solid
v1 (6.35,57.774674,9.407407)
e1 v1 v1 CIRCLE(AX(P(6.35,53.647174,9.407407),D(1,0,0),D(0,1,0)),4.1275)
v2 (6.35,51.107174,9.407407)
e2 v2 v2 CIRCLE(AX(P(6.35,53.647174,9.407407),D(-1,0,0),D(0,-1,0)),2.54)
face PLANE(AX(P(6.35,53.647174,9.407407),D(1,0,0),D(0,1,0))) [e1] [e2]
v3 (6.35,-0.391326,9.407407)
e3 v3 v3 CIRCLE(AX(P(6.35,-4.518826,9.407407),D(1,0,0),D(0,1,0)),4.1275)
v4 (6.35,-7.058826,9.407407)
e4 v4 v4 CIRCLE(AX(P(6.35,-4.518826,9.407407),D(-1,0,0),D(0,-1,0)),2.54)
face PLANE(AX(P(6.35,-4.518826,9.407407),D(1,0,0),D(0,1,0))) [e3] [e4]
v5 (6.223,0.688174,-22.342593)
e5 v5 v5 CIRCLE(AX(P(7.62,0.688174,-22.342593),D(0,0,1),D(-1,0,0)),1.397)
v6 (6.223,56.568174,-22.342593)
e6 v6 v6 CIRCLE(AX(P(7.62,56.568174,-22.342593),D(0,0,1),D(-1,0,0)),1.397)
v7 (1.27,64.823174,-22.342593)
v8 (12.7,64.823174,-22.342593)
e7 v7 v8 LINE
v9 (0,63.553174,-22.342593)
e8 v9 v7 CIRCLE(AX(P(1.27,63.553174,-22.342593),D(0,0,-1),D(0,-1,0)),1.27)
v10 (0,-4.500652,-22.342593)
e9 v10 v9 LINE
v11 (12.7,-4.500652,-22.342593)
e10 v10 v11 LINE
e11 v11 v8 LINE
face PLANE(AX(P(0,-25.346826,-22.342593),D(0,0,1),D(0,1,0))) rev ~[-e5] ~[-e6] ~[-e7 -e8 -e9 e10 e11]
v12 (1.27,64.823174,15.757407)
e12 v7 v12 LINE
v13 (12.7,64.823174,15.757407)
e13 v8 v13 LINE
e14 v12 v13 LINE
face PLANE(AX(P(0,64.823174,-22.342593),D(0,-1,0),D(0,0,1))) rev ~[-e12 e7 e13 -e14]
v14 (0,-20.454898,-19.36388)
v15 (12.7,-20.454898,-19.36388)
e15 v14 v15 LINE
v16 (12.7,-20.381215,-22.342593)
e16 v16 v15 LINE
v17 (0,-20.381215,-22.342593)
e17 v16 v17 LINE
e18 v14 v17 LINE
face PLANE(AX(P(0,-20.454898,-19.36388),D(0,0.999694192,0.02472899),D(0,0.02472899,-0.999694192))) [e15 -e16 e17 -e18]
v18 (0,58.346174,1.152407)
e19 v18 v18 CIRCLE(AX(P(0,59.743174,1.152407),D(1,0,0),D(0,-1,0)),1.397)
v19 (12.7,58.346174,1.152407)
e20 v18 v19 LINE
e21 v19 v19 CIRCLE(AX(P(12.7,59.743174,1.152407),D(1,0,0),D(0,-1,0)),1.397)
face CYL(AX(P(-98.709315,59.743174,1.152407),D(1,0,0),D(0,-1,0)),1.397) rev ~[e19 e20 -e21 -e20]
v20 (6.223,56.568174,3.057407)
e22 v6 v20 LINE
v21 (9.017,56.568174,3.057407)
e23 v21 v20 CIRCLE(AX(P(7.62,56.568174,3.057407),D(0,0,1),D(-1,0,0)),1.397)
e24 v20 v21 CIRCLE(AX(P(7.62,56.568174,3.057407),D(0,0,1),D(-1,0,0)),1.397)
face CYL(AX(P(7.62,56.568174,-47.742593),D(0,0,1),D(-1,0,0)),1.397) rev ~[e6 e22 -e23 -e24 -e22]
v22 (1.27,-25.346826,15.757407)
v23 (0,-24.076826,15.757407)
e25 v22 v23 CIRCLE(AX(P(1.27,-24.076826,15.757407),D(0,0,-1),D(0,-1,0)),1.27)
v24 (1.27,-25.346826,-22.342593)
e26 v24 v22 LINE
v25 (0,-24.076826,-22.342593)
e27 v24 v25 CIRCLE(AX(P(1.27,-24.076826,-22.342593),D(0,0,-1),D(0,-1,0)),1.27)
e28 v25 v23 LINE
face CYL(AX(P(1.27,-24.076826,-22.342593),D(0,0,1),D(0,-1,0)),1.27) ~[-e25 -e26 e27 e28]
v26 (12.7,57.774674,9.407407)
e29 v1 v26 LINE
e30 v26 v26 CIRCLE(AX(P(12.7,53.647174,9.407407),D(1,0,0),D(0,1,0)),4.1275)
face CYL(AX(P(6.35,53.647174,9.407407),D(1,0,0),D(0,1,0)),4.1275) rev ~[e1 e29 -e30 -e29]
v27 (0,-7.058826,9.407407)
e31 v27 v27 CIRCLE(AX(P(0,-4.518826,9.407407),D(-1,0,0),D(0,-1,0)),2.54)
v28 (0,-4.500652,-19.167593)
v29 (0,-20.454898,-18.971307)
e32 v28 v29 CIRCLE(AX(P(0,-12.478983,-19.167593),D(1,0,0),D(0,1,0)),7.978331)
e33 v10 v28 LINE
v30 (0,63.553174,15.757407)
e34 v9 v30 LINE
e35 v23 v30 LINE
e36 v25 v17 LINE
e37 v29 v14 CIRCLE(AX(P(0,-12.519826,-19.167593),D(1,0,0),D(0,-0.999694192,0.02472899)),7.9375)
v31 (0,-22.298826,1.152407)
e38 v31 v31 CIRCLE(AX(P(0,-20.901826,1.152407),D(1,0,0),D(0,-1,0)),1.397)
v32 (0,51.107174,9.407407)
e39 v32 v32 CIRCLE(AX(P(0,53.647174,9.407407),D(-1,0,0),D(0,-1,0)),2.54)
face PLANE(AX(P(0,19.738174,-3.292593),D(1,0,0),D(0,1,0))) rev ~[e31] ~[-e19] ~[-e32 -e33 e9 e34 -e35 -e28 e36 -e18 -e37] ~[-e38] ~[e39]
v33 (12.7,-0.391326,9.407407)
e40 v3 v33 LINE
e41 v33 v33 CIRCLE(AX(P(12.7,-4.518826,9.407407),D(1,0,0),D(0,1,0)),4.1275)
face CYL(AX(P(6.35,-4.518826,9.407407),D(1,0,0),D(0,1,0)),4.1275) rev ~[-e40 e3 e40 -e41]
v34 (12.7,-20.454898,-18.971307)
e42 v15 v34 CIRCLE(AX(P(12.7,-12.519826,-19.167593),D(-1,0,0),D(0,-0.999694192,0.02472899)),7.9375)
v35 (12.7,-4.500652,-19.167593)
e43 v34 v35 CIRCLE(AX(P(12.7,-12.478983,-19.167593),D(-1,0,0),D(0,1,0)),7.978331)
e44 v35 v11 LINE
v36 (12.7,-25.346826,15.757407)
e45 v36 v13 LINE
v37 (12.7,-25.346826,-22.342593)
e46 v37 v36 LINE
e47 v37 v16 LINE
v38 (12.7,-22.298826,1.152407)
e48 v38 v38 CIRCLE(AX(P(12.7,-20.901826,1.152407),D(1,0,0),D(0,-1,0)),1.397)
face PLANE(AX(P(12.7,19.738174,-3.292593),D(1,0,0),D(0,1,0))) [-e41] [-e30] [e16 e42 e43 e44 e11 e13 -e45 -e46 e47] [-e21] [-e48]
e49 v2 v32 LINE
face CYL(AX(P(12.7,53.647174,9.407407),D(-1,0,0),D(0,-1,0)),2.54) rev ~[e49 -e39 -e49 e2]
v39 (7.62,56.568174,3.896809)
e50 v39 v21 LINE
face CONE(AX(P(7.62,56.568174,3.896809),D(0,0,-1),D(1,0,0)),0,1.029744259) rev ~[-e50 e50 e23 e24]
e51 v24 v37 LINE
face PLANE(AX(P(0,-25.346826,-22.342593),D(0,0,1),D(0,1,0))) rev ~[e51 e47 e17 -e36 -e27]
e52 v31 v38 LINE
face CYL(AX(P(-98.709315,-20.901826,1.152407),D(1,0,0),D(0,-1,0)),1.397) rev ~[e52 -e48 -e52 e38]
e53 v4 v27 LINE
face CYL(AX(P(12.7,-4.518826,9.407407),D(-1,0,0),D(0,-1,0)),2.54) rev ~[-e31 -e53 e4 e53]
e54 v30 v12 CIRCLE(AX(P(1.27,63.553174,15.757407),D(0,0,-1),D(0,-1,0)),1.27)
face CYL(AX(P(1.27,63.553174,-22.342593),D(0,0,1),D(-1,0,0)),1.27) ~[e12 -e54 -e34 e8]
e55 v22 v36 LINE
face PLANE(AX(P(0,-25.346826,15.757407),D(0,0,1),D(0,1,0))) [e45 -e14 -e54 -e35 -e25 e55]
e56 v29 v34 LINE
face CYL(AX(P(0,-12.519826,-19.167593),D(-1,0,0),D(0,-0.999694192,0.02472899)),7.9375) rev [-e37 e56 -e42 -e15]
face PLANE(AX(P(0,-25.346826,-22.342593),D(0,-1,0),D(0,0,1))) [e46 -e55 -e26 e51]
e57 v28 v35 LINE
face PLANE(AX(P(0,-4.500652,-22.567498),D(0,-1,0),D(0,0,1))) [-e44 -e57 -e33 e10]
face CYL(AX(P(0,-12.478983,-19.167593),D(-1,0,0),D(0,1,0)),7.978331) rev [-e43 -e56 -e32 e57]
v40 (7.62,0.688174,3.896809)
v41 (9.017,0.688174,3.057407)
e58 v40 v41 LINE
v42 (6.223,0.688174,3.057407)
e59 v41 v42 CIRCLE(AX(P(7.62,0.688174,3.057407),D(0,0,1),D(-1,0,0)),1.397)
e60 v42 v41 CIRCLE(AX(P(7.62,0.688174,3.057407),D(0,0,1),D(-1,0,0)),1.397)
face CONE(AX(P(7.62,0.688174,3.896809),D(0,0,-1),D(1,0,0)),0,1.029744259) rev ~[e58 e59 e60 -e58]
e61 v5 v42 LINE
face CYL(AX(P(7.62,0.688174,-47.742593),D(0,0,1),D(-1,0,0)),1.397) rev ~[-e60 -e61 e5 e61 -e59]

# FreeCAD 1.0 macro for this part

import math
import FreeCAD as App
import Part
import Sketcher

V = App.Vector
Q = App.Units.Quantity


def edges_at(feature, points):
    """Names of the edges that pass closest to the given points."""
    edges = feature.Shape.Edges
    near = lambda p: min(range(len(edges)), key=lambda i: edges[i].distToShape(Part.Vertex(*p))[0])
    return sorted({f"Edge{near(p) + 1}" for p in points})


def add_polygon(sketch, points):
    """Adds a closed chain of lines whose ends are joined by coincident constraints."""
    first, n = sketch.GeometryCount, len(points)
    for a, b in zip(points, points[1:] + points[:1]):
        sketch.addGeometry(Part.LineSegment(App.Vector(*a, 0), App.Vector(*b, 0)), False)
    for i in range(n):
        sketch.addConstraint(Sketcher.Constraint("Coincident", first + i, 2, first + (i + 1) % n, 1))

doc = App.newDocument("Part")
params = doc.addObject("Spreadsheet::Sheet", "Params")
for row, (alias, value) in enumerate([
    ("sketch1_height", "1.5 in"),
    ("sketch1_width", "3.55 in"),
    ("pad1_length", "0.5 in"),
    ("sketch2_diameter", "0.11 in"),
    ("hole_diameter", "0.11 in"),
    ("sketch3_diameter", "0.2 in"),
    ("hole2_diameter", "0.2 in"),
    ("hole2_cbore_diameter", "0.325 in"),
    ("hole2_cbore_depth", "0.25 in"),
    ("sketch4_radius", "0.3125 in"),
    ("sketch4_width", "0.625 in"),
    ("sketch5_diameter", "0.11 in"),
    ("hole3_diameter", "0.11 in"),
    ("hole3_depth", "1 in"),
    ("fillet_radius", "0.05 in"),
], start=1):
    params.set(f"A{row}", alias)
    params.set(f"B{row}", "=" + value)
    params.setAlias(f"B{row}", alias)

body = doc.addObject("PartDesign::Body", "Body")

# Sketch on YZ plane
sketch1 = doc.addObject("Sketcher::SketchObject", "Sketch")
body.addObject(sketch1)
sketch1.AttachmentSupport = (doc.YZ_Plane, [""])
sketch1.MapMode = "FlatFace"
add_polygon(sketch1, [(-25.346826, 15.757407), (-25.346826, -22.342593), (64.823174, -22.342593), (64.823174, 15.757407)])  # lines 0-3
sketch1.addConstraint([
    Sketcher.Constraint("Vertical", 0),
    Sketcher.Constraint("Horizontal", 1),
    Sketcher.Constraint("Vertical", 2),
    Sketcher.Constraint("Horizontal", 3),
    Sketcher.Constraint("DistanceY", 0, 2, 0, 1, Q("1.5 in")),
    Sketcher.Constraint("DistanceX", 1, 1, 1, 2, Q("3.55 in")),
    Sketcher.Constraint("DistanceX", 0, 2, -1, 1, 25.346826),
    Sketcher.Constraint("DistanceY", 0, 2, -1, 1, 22.342593),
])
sketch1.setExpression("Constraints[8]", "Params.sketch1_height")
sketch1.setExpression("Constraints[9]", "Params.sketch1_width")
pad1 = doc.addObject("PartDesign::Pad", "Pad")
body.addObject(pad1)
pad1.Profile = sketch1
pad1.setExpression("Length", "Params.pad1_length")

# Sketch on YZ plane
sketch2 = doc.addObject("Sketcher::SketchObject", "Sketch001")
body.addObject(sketch2)
sketch2.AttachmentSupport = (doc.YZ_Plane, [""])
sketch2.MapMode = "FlatFace"
sketch2.addGeometry([
    Part.Circle(V(-20.901826, 1.152407, 0), V(0, 0, 1), 1.397),
    Part.Circle(V(59.743174, 1.152407, 0), V(0, 0, 1), 1.397),
], False)
sketch2.addConstraint([
    Sketcher.Constraint("Equal", 0, 1),
    Sketcher.Constraint("Horizontal", 0, 3, 1, 3),
    Sketcher.Constraint("Diameter", 0, Q("0.11 in")),
    Sketcher.Constraint("DistanceX", 0, 3, 1, 3, Q("3.175 in")),
    Sketcher.Constraint("DistanceX", 0, 3, -1, 1, 20.901826),
    Sketcher.Constraint("DistanceY", -1, 1, 0, 3, 1.152407),
])
sketch2.setExpression("Constraints[2]", "Params.sketch2_diameter")
doc.recompute()
hole = doc.addObject("PartDesign::Hole", "Hole")
body.addObject(hole)
hole.Profile = sketch2
hole.ThreadType = "None"
hole.setExpression("Diameter", "Params.hole_diameter")
hole.DepthType = "ThroughAll"
hole.Reversed = True

# Sketch on YZ plane
sketch3 = doc.addObject("Sketcher::SketchObject", "Sketch002")
body.addObject(sketch3)
sketch3.AttachmentSupport = (doc.YZ_Plane, [""])
sketch3.MapMode = "FlatFace"
sketch3.AttachmentOffset = App.Placement(V(0, 0, 0.5 * 25.4), App.Rotation())
sketch3.addGeometry([
    Part.Circle(V(-4.518826, 9.407407, 0), V(0, 0, 1), 2.54),
    Part.Circle(V(53.647174, 9.407407, 0), V(0, 0, 1), 2.54),
], False)
sketch3.addConstraint([
    Sketcher.Constraint("Equal", 0, 1),
    Sketcher.Constraint("Horizontal", 0, 3, 1, 3),
    Sketcher.Constraint("Diameter", 0, Q("0.2 in")),
    Sketcher.Constraint("DistanceX", 0, 3, 1, 3, Q("2.29 in")),
    Sketcher.Constraint("DistanceX", 0, 3, -1, 1, 4.518826),
    Sketcher.Constraint("DistanceY", -1, 1, 0, 3, 9.407407),
])
sketch3.setExpression("Constraints[2]", "Params.sketch3_diameter")
doc.recompute()
hole2 = doc.addObject("PartDesign::Hole", "Hole001")
body.addObject(hole2)
hole2.Profile = sketch3
hole2.ThreadType = "None"
hole2.setExpression("Diameter", "Params.hole2_diameter")
hole2.DepthType = "ThroughAll"
hole2.HoleCutType = "Counterbore"
hole2.setExpression("HoleCutDiameter", "Params.hole2_cbore_diameter")
hole2.setExpression("HoleCutDepth", "Params.hole2_cbore_depth")

# Sketch on YZ plane
sketch4 = doc.addObject("Sketcher::SketchObject", "Sketch003")
body.addObject(sketch4)
sketch4.AttachmentSupport = (doc.YZ_Plane, [""])
sketch4.MapMode = "FlatFace"
sketch4.addGeometry([
    Part.ArcOfCircle(Part.Circle(V(-12.478983, -19.167593, 0), V(0, 0, 1), 7.978331), math.radians(0), math.radians(178.590242)),  # 0
    Part.ArcOfCircle(Part.Circle(V(-12.519826, -19.167593, 0), V(0, 0, 1), 7.9375), math.radians(178.582989), math.radians(181.417011)),  # 1
    Part.LineSegment(V(-20.454898, -19.36388, 0), V(-20.375652, -22.567498, 0)),  # 2
    Part.LineSegment(V(-20.375652, -22.567498, 0), V(-4.500652, -22.567498, 0)),  # 3
    Part.LineSegment(V(-4.500652, -22.567498, 0), V(-4.500652, -19.167593, 0)),  # 4
], False)
sketch4.addConstraint([
    Sketcher.Constraint("Coincident", 0, 2, 1, 1),
    Sketcher.Constraint("Tangent", 1, 2, 2, 1),
    Sketcher.Constraint("Coincident", 2, 2, 3, 1),
    Sketcher.Constraint("Coincident", 3, 2, 4, 1),
    Sketcher.Constraint("Tangent", 4, 2, 0, 1),
    Sketcher.Constraint("Horizontal", 3),
    Sketcher.Constraint("Vertical", 4),
    Sketcher.Constraint("Horizontal", 0, 3, 1, 3),
    Sketcher.Constraint("Vertical", 0, 2, 1, 2),
    Sketcher.Constraint("Radius", 1, Q("0.3125 in")),
    Sketcher.Constraint("DistanceX", 3, 1, 3, 2, Q("0.625 in")),
    Sketcher.Constraint("Radius", 0, 7.978331),
    Sketcher.Constraint("Distance", 2, 3.204598),
    Sketcher.Constraint("DistanceX", 0, 2, -1, 1, 20.454898),
    Sketcher.Constraint("DistanceY", 1, 2, -1, 1, 19.36388),
])
sketch4.setExpression("Constraints[9]", "Params.sketch4_radius")
sketch4.setExpression("Constraints[10]", "Params.sketch4_width")
pocket1 = doc.addObject("PartDesign::Pocket", "Pocket")
body.addObject(pocket1)
pocket1.Profile = sketch4
pocket1.Type = "ThroughAll"
pocket1.Reversed = True

# Sketch on XY plane
sketch5 = doc.addObject("Sketcher::SketchObject", "Sketch004")
body.addObject(sketch5)
sketch5.AttachmentSupport = (doc.XY_Plane, [""])
sketch5.MapMode = "FlatFace"
sketch5.AttachmentOffset = App.Placement(V(0, 0, -22.342593), App.Rotation())
sketch5.addGeometry([
    Part.Circle(V(7.62, 0.688174, 0), V(0, 0, 1), 1.397),
    Part.Circle(V(7.62, 56.568174, 0), V(0, 0, 1), 1.397),
], False)
sketch5.addConstraint([
    Sketcher.Constraint("Equal", 0, 1),
    Sketcher.Constraint("Vertical", 0, 3, 1, 3),
    Sketcher.Constraint("Diameter", 0, Q("0.11 in")),
    Sketcher.Constraint("DistanceX", -1, 1, 0, 3, Q("0.3 in")),
    Sketcher.Constraint("DistanceY", 0, 3, 1, 3, Q("2.2 in")),
    Sketcher.Constraint("DistanceY", -1, 1, 0, 3, 0.688174),
])
sketch5.setExpression("Constraints[2]", "Params.sketch5_diameter")
doc.recompute()
hole3 = doc.addObject("PartDesign::Hole", "Hole002")
body.addObject(hole3)
hole3.Profile = sketch5
hole3.ThreadType = "None"
hole3.setExpression("Diameter", "Params.hole3_diameter")
hole3.DepthType = "Dimension"
hole3.setExpression("Depth", "Params.hole3_depth")
hole3.DrillPoint = "Angled"
hole3.DrillPointAngle = 118
hole3.Reversed = True
doc.recompute()

fillet = doc.addObject("PartDesign::Fillet", "Fillet")
body.addObject(fillet)
fillet.Base = (hole3, edges_at(hole3, [(0, -25.347, -3.293), (0, 64.823, -3.293)]))
fillet.setExpression("Radius", "Params.fillet_radius")

doc.recompute()
